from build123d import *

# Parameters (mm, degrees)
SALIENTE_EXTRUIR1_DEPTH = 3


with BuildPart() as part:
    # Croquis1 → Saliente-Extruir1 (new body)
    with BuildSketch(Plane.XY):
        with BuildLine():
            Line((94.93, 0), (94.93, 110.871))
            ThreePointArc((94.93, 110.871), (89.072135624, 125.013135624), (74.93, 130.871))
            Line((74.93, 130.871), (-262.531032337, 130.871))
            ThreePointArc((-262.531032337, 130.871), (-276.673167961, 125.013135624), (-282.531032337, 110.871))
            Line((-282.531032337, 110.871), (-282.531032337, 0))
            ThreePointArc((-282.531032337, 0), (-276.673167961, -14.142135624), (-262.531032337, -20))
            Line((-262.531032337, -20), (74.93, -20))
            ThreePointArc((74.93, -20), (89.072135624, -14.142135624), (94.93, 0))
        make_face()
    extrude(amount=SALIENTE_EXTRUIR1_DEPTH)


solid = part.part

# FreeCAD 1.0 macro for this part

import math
import FreeCAD as App
import Part
import Sketcher

V = App.Vector
Q = App.Units.Quantity

doc = App.newDocument("Part")
body = doc.addObject("PartDesign::Body", "Body")

# Sketch on XY plane
sketch1 = body.newObject("Sketcher::SketchObject", "Sketch")
sketch1.AttachmentSupport = (doc.getObject("XY_Plane"), [""])
sketch1.MapMode = "FlatFace"
sketch1.addGeometry(Part.LineSegment(V(95, 0, 0), V(95, 111, 0)), False)
sketch1.addGeometry(Part.ArcOfCircle(Part.Circle(V(75, 111, 0), V(0, 0, 1), 20), math.radians(0), math.radians(90)), False)
sketch1.addGeometry(Part.LineSegment(V(75, 131, 0), V(-263, 131, 0)), False)
sketch1.addGeometry(Part.ArcOfCircle(Part.Circle(V(-263, 111, 0), V(0, 0, 1), 20), math.radians(90), math.radians(180)), False)
sketch1.addGeometry(Part.LineSegment(V(-283, 111, 0), V(-283, 0, 0)), False)
sketch1.addGeometry(Part.ArcOfCircle(Part.Circle(V(-263, 0, 0), V(0, 0, 1), 20), math.radians(180), math.radians(270)), False)
sketch1.addGeometry(Part.LineSegment(V(-263, -20, 0), V(75, -20, 0)), False)
sketch1.addGeometry(Part.ArcOfCircle(Part.Circle(V(75, 0, 0), V(0, 0, 1), 20), math.radians(-90), math.radians(0)), False)
sketch1.addConstraint(Sketcher.Constraint("Tangent", 0, 2, 1, 1))
sketch1.addConstraint(Sketcher.Constraint("Tangent", 1, 2, 2, 1))
sketch1.addConstraint(Sketcher.Constraint("Tangent", 2, 2, 3, 1))
sketch1.addConstraint(Sketcher.Constraint("Tangent", 3, 2, 4, 1))
sketch1.addConstraint(Sketcher.Constraint("Tangent", 4, 2, 5, 1))
sketch1.addConstraint(Sketcher.Constraint("Tangent", 5, 2, 6, 1))
sketch1.addConstraint(Sketcher.Constraint("Tangent", 6, 2, 7, 1))
sketch1.addConstraint(Sketcher.Constraint("Tangent", 7, 2, 0, 1))
sketch1.addConstraint(Sketcher.Constraint("Vertical", 0))
sketch1.addConstraint(Sketcher.Constraint("Horizontal", 2))
sketch1.addConstraint(Sketcher.Constraint("Vertical", 4))
sketch1.addConstraint(Sketcher.Constraint("Horizontal", 6))
sketch1.addConstraint(Sketcher.Constraint("Equal", 1, 3))
sketch1.addConstraint(Sketcher.Constraint("Equal", 3, 5))
sketch1.addConstraint(Sketcher.Constraint("Equal", 5, 7))
sketch1.addConstraint(Sketcher.Constraint("PointOnObject", 5, 3, -1))
sketch1.addConstraint(Sketcher.Constraint("Radius", 1, Q("20 mm")))
sketch1.addConstraint(Sketcher.Constraint("DistanceY", 0, 1, 0, 2, Q("110.871 mm")))
sketch1.addConstraint(Sketcher.Constraint("DistanceX", -1, 1, 1, 3, Q("74.93 mm")))
sketch1.addConstraint(Sketcher.Constraint("DistanceX", 2, 2, 2, 1, Q("337.461032 mm")))
pad1 = body.newObject("PartDesign::Pad", "Pad")
pad1.Profile = sketch1
pad1.Length = 3

doc.recompute()
